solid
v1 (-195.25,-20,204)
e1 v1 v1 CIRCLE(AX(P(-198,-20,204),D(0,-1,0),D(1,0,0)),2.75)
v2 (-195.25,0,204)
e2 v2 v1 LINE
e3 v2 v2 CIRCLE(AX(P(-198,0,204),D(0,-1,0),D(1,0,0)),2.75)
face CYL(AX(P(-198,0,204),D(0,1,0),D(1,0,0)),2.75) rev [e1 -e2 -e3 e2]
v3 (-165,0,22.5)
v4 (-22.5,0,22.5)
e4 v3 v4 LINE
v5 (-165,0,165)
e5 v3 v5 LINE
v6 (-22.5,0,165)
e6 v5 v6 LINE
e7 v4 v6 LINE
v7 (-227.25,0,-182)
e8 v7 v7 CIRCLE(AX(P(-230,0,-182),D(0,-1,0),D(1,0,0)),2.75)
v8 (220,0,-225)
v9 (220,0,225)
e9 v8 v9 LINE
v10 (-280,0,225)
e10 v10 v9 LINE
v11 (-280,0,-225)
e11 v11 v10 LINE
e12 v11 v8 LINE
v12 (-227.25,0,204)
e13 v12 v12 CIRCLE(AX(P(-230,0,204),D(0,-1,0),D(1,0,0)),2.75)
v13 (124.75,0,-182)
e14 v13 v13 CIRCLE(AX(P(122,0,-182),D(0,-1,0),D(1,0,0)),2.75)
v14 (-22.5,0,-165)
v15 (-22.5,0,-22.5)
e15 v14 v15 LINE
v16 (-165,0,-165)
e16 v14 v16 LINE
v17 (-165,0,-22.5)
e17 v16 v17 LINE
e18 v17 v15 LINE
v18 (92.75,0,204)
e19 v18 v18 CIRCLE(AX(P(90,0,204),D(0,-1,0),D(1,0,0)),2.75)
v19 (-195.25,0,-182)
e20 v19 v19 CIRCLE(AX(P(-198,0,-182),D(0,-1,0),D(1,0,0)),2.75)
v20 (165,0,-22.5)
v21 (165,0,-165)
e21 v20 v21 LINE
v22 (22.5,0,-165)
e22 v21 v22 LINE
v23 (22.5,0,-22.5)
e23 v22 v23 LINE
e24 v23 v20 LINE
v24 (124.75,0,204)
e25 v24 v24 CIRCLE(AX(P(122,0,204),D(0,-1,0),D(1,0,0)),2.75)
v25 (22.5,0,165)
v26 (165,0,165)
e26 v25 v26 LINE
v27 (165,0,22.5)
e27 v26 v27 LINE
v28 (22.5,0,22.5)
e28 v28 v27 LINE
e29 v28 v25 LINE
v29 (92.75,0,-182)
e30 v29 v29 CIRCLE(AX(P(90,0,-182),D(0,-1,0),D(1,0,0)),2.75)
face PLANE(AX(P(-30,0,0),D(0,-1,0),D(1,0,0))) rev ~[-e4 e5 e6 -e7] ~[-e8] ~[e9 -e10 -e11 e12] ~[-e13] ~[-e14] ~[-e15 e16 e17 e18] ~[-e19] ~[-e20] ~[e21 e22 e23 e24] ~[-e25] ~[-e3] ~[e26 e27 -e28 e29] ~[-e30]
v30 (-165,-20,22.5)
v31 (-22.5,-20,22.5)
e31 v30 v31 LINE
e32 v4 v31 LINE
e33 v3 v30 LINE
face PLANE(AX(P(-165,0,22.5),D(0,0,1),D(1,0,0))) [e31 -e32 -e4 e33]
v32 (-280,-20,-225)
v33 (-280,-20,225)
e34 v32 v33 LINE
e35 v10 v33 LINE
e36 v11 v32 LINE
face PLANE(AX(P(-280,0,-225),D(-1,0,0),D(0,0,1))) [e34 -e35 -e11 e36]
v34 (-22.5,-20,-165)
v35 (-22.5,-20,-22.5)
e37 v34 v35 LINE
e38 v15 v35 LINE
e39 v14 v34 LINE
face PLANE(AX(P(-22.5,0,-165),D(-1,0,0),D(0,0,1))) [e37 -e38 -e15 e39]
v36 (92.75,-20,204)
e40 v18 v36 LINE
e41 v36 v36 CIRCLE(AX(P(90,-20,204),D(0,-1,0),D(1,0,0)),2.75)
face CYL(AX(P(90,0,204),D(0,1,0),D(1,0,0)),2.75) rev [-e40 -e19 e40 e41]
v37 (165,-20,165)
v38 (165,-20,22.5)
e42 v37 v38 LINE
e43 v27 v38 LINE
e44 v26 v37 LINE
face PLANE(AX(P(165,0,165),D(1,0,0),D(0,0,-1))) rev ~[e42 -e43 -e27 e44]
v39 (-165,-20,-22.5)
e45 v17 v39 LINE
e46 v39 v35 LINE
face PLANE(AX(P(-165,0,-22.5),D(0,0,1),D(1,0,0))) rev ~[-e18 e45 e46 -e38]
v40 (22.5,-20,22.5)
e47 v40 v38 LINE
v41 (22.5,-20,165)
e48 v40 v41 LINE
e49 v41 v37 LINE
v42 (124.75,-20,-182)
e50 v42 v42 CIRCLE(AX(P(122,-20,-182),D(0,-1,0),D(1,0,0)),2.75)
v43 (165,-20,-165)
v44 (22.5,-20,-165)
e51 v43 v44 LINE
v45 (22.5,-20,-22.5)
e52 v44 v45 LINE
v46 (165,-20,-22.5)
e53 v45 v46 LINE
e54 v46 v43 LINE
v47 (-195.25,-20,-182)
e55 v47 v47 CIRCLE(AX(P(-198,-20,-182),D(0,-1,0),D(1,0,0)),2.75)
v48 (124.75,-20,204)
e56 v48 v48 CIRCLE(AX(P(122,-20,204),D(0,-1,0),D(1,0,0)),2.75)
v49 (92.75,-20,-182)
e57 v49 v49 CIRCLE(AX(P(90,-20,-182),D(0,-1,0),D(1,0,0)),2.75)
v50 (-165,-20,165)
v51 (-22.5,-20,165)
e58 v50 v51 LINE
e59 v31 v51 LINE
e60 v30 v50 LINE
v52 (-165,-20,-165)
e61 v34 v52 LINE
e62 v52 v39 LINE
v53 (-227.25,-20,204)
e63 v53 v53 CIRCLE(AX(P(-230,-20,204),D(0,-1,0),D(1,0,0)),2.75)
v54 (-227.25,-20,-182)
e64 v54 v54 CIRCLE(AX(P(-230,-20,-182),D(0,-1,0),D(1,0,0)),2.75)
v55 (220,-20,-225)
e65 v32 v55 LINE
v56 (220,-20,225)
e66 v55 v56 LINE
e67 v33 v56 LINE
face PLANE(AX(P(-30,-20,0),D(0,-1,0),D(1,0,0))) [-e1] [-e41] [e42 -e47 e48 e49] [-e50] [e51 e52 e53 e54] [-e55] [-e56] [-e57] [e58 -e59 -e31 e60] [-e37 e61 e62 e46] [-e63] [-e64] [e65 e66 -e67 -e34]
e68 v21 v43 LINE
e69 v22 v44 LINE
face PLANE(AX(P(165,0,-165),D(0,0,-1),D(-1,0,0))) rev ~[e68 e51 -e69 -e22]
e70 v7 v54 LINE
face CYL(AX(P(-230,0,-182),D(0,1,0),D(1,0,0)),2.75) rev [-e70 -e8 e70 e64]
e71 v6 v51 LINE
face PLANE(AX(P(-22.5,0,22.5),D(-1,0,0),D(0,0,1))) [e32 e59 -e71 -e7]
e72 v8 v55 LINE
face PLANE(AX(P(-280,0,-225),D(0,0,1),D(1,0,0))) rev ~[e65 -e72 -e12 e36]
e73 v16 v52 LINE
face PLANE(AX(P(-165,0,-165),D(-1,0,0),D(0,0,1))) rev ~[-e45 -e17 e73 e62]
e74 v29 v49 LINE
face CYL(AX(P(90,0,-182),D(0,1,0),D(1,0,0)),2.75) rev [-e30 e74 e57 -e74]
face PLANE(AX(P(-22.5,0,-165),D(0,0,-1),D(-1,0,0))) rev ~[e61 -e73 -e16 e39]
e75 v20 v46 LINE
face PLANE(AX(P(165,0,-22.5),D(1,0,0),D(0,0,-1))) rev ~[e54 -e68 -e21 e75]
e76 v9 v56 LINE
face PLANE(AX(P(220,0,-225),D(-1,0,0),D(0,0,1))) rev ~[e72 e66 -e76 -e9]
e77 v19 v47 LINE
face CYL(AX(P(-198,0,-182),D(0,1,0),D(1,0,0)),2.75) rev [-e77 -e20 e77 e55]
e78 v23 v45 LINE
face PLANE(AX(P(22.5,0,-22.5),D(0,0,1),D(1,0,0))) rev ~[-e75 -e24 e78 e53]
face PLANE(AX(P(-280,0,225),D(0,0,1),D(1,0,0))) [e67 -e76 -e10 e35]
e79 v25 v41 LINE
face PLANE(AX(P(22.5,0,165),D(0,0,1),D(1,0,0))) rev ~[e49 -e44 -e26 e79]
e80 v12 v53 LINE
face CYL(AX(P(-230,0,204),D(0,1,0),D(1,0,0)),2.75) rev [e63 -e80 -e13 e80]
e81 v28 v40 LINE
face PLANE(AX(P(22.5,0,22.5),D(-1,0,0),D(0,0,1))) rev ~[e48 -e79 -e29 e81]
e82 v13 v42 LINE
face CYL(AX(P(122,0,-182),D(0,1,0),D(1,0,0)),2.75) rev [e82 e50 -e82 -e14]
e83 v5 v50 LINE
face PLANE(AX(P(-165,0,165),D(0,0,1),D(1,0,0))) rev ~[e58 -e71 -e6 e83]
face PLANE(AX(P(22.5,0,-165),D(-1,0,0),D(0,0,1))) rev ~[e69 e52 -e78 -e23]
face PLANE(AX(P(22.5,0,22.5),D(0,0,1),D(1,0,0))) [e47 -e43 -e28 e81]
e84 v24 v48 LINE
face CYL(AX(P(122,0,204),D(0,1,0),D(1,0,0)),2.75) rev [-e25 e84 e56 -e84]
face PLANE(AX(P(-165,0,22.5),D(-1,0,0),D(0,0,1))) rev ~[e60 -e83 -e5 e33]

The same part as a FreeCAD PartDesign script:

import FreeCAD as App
import Part
import Sketcher


def add_polygon(sketch, points):
    """Adds a closed chain of lines whose ends are joined by coincident constraints."""
    first, n = sketch.GeometryCount, len(points)
    for a, b in zip(points, points[1:] + points[:1]):
        sketch.addGeometry(Part.LineSegment(App.Vector(*a, 0), App.Vector(*b, 0)), False)
    for i in range(n):
        sketch.addConstraint(Sketcher.Constraint("Coincident", first + i, 2, first + (i + 1) % n, 1))

doc = App.newDocument("Part")
body = doc.addObject("PartDesign::Body", "Body")

# Sketch on XZ plane
sketch1 = body.newObject("Sketcher::SketchObject", "Sketch")
sketch1.AttachmentSupport = (doc.getObject("XZ_Plane"), [""])
sketch1.MapMode = "FlatFace"
add_polygon(sketch1, [(-280, 225), (-280, -225), (220, -225), (220, 225)])  # lines 0-3
sketch1.addGeometry(Part.Circle(App.Vector(-230, -182, 0), App.Vector(0, 0, 1), 2.75), False)  # 4
sketch1.addGeometry(Part.Circle(App.Vector(-198, -182, 0), App.Vector(0, 0, 1), 2.75), False)  # 5
add_polygon(sketch1, [(-165, -22.5), (-22.5, -22.5), (-22.5, -165), (-165, -165)])  # lines 6-9
sketch1.addGeometry(Part.Circle(App.Vector(90, -182, 0), App.Vector(0, 0, 1), 2.75), False)  # 10
sketch1.addGeometry(Part.Circle(App.Vector(122, -182, 0), App.Vector(0, 0, 1), 2.75), False)  # 11
add_polygon(sketch1, [(22.5, -165), (22.5, -22.5), (165, -22.5), (165, -165)])  # lines 12-15
add_polygon(sketch1, [(-22.5, 165), (-22.5, 22.5), (-165, 22.5), (-165, 165)])  # lines 16-19
sketch1.addGeometry(Part.Circle(App.Vector(-230, 204, 0), App.Vector(0, 0, 1), 2.75), False)  # 20
sketch1.addGeometry(Part.Circle(App.Vector(-198, 204, 0), App.Vector(0, 0, 1), 2.75), False)  # 21
add_polygon(sketch1, [(165, 22.5), (22.5, 22.5), (22.5, 165), (165, 165)])  # lines 22-25
sketch1.addGeometry(Part.Circle(App.Vector(90, 204, 0), App.Vector(0, 0, 1), 2.75), False)  # 26
sketch1.addGeometry(Part.Circle(App.Vector(122, 204, 0), App.Vector(0, 0, 1), 2.75), False)  # 27
sketch1.addConstraint([
    Sketcher.Constraint("Vertical", 0),
    Sketcher.Constraint("Horizontal", 1),
    Sketcher.Constraint("Vertical", 2),
    Sketcher.Constraint("Horizontal", 3),
    Sketcher.Constraint("Horizontal", 6),
    Sketcher.Constraint("Vertical", 7),
    Sketcher.Constraint("Horizontal", 8),
    Sketcher.Constraint("Vertical", 9),
    Sketcher.Constraint("Vertical", 12),
    Sketcher.Constraint("Horizontal", 13),
    Sketcher.Constraint("Vertical", 14),
    Sketcher.Constraint("Horizontal", 15),
    Sketcher.Constraint("Vertical", 16),
    Sketcher.Constraint("Horizontal", 17),
    Sketcher.Constraint("Vertical", 18),
    Sketcher.Constraint("Horizontal", 19),
    Sketcher.Constraint("Horizontal", 22),
    Sketcher.Constraint("Vertical", 23),
    Sketcher.Constraint("Horizontal", 24),
    Sketcher.Constraint("Vertical", 25),
    Sketcher.Constraint("Equal", 4, 5),
    Sketcher.Constraint("Equal", 5, 10),
    Sketcher.Constraint("Equal", 10, 11),
    Sketcher.Constraint("Equal", 11, 20),
    Sketcher.Constraint("Equal", 20, 21),
    Sketcher.Constraint("Equal", 21, 26),
    Sketcher.Constraint("Equal", 26, 27),
    Sketcher.Constraint("Symmetric", 12, 2, 16, 2, -1, 1),
    Sketcher.Constraint("Symmetric", 14, 2, 18, 2, -1, 1),
    Sketcher.Constraint("Symmetric", 6, 2, 22, 2, -1, 1),
    Sketcher.Constraint("Symmetric", 8, 2, 24, 2, -1, 1),
    Sketcher.Constraint("Symmetric", 6, 2, 12, 2, -2),
    Sketcher.Constraint("Symmetric", 8, 2, 14, 2, -2),
    Sketcher.Constraint("Horizontal", 4, 3, 5, 3),
    Sketcher.Constraint("Horizontal", 5, 3, 10, 3),
    Sketcher.Constraint("Horizontal", 10, 3, 11, 3),
    Sketcher.Constraint("Horizontal", 20, 3, 21, 3),
    Sketcher.Constraint("Horizontal", 21, 3, 26, 3),
    Sketcher.Constraint("Horizontal", 26, 3, 27, 3),
    Sketcher.Constraint("Vertical", 4, 3, 20, 3),
    Sketcher.Constraint("Vertical", 5, 3, 21, 3),
    Sketcher.Constraint("Vertical", 10, 3, 26, 3),
    Sketcher.Constraint("Vertical", 11, 3, 27, 3),
    Sketcher.Constraint("Equal", 24, 7),
    Sketcher.Constraint("Diameter", 4, 5.5),
    Sketcher.Constraint("DistanceX", 1, 1, 1, 2, 500.0),
    Sketcher.Constraint("DistanceY", 0, 2, 0, 1, 450.0),
    Sketcher.Constraint("DistanceX", 6, 1, 6, 2, 142.5),
    Sketcher.Constraint("DistanceX", 4, 3, -1, 1, 230.0),
    Sketcher.Constraint("DistanceY", 4, 3, -1, 1, 182.0),
    Sketcher.Constraint("DistanceX", 5, 3, -1, 1, 198.0),
    Sketcher.Constraint("DistanceX", -1, 1, 10, 3, 90.0),
    Sketcher.Constraint("DistanceX", -1, 1, 11, 3, 122.0),
    Sketcher.Constraint("DistanceY", -1, 1, 20, 3, 204.0),
    Sketcher.Constraint("DistanceX", 0, 2, -1, 1, 280.0),
    Sketcher.Constraint("DistanceY", 0, 2, -1, 1, 225.0),
    Sketcher.Constraint("DistanceY", 7, 2, -1, 1, 165.0),
    Sketcher.Constraint("DistanceX", 8, 2, -1, 1, 165.0),
])
pad1 = body.newObject("PartDesign::Pad", "Pad")
pad1.Profile = sketch1
pad1.Length = 20

doc.recompute()
